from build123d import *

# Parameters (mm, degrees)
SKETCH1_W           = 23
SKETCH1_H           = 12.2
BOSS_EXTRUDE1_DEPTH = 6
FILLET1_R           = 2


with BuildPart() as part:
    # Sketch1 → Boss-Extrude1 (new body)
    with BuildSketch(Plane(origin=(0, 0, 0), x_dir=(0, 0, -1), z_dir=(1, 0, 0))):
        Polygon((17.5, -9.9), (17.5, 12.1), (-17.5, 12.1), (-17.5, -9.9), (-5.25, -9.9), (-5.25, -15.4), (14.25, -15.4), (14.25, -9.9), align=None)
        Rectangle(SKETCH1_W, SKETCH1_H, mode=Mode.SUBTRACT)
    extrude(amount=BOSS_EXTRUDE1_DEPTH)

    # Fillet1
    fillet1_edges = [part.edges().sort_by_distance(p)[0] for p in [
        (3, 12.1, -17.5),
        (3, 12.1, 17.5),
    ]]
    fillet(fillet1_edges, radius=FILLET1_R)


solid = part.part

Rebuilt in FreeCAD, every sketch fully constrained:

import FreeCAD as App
import Part
import Sketcher


def edges_at(feature, points):
    """Names of the edges that pass closest to the given points."""
    edges = feature.Shape.Edges
    near = lambda p: min(range(len(edges)), key=lambda i: edges[i].distToShape(Part.Vertex(*p))[0])
    return sorted({f"Edge{near(p) + 1}" for p in points})


def add_polygon(sketch, points):
    """Adds a closed chain of lines whose ends are joined by coincident constraints."""
    first, n = sketch.GeometryCount, len(points)
    for a, b in zip(points, points[1:] + points[:1]):
        sketch.addGeometry(Part.LineSegment(App.Vector(*a, 0), App.Vector(*b, 0)), False)
    for i in range(n):
        sketch.addConstraint(Sketcher.Constraint("Coincident", first + i, 2, first + (i + 1) % n, 1))

doc = App.newDocument("Part")
body = doc.addObject("PartDesign::Body", "Body")

sketch1 = body.newObject("Sketcher::SketchObject", "Sketch")
sketch1.AttachmentSupport = (doc.getObject("YZ_Plane"), [""])
sketch1.MapMode = "FlatFace"
add_polygon(sketch1, [(-9.9, -17.5), (12.1, -17.5), (12.1, 17.5), (-9.9, 17.5), (-9.9, 5.2), (-15.4, 5.2), (-15.4, -14.2), (-9.9, -14.2)])
add_polygon(sketch1, [(-6.1, -11.5), (-6.1, 11.5), (6.1, 11.5), (6.1, -11.5)])
sketch1.addConstraint([
    Sketcher.Constraint("Horizontal", 0),
    Sketcher.Constraint("Vertical", 1),
    Sketcher.Constraint("Horizontal", 2),
    Sketcher.Constraint("Vertical", 3),
    Sketcher.Constraint("Horizontal", 4),
    Sketcher.Constraint("Vertical", 5),
    Sketcher.Constraint("Horizontal", 6),
    Sketcher.Constraint("Vertical", 7),
    Sketcher.Constraint("Vertical", 8),
    Sketcher.Constraint("Horizontal", 9),
    Sketcher.Constraint("Vertical", 10),
    Sketcher.Constraint("Horizontal", 11),
    Sketcher.Constraint("Symmetric", 8, 2, 10, 2, -1, 1),
    Sketcher.Constraint("Symmetric", 2, 2, 7, 2, -1),
    Sketcher.Constraint("DistanceX", 0, 1, 0, 2, 22.0),
    Sketcher.Constraint("DistanceY", 1, 1, 1, 2, 35.0),
    Sketcher.Constraint("DistanceY", 8, 1, 8, 2, 23.0),
    Sketcher.Constraint("DistanceX", 4, 2, 4, 1, 5.5),
    Sketcher.Constraint("DistanceX", 9, 1, 9, 2, 12.2),
    Sketcher.Constraint("DistanceY", 5, 2, 5, 1, 19.5),
    Sketcher.Constraint("DistanceX", 9, 2, 1, 2, 6.0),
    Sketcher.Constraint("DistanceY", 3, 2, 3, 1, 12.25),
])
pad1 = body.newObject("PartDesign::Pad", "Pad")
pad1.Profile = sketch1
pad1.Length = 6
doc.recompute()

fillet = body.newObject("PartDesign::Fillet", "Fillet")
fillet.Base = (pad1, edges_at(pad1, [(3, 12.1, -17.5), (3, 12.1, 17.5)]))
fillet.Radius = 2

doc.recompute()
